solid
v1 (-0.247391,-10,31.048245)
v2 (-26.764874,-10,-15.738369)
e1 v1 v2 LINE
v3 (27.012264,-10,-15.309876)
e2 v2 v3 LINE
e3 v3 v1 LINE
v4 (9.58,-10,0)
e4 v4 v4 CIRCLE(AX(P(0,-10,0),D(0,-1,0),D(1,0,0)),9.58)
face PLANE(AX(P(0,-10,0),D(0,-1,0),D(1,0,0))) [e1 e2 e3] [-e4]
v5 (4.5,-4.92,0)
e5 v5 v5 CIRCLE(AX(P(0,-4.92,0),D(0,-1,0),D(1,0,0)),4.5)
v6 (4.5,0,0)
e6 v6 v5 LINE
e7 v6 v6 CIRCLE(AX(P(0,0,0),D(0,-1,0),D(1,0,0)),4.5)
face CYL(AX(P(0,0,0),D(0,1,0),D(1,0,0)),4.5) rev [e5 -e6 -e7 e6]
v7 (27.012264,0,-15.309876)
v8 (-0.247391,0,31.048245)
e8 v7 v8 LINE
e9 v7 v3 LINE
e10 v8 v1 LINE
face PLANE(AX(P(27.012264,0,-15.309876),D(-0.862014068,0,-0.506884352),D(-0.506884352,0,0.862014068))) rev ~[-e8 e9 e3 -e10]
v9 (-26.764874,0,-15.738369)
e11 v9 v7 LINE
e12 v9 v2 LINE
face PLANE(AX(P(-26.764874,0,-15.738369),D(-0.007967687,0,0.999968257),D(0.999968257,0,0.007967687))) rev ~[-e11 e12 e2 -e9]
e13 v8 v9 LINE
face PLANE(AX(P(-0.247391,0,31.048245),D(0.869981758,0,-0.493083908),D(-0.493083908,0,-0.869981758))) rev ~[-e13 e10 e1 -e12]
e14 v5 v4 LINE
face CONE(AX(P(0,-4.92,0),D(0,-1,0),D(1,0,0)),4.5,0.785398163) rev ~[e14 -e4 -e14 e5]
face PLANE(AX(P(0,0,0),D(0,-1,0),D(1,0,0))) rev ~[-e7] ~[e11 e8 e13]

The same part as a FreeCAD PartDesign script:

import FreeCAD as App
import Part
import Sketcher

V = App.Vector


def edges_at(feature, points):
    """Names of the edges that pass closest to the given points."""
    edges = feature.Shape.Edges
    near = lambda p: min(range(len(edges)), key=lambda i: edges[i].distToShape(Part.Vertex(*p))[0])
    return sorted({f"Edge{near(p) + 1}" for p in points})

doc = App.newDocument("Part")
params = doc.addObject("Spreadsheet::Sheet", "Params")
for row, (alias, value) in enumerate([
    ("sketch1_diameter", "9 mm"),
    ("pad1_length", "10 mm"),
    ("chamfer_size", "5.08 mm"),
], start=1):
    params.set(f"A{row}", alias)
    params.set(f"B{row}", "=" + value)
    params.setAlias(f"B{row}", alias)

body = doc.addObject("PartDesign::Body", "Body")

# Sketch on XZ plane
sketch1 = doc.addObject("Sketcher::SketchObject", "Sketch")
body.addObject(sketch1)
sketch1.AttachmentSupport = (doc.XZ_Plane, [""])
sketch1.MapMode = "FlatFace"
sketch1.addGeometry(Part.LineSegment(V(-0.247391, 31.048245, 0), V(-26.764874, -15.738369, 0)), False)
sketch1.addGeometry(Part.LineSegment(V(-26.764874, -15.738369, 0), V(27.012264, -15.309876, 0)), False)
sketch1.addGeometry(Part.LineSegment(V(27.012264, -15.309876, 0), V(-0.247391, 31.048245, 0)), False)
sketch1.addGeometry(Part.Circle(V(0, 0, 0), V(0, 0, 1), 4.5), False)
sketch1.addConstraint(Sketcher.Constraint("Coincident", 0, 2, 1, 1))
sketch1.addConstraint(Sketcher.Constraint("Coincident", 1, 2, 2, 1))
sketch1.addConstraint(Sketcher.Constraint("Coincident", 2, 2, 0, 1))
sketch1.addConstraint(Sketcher.Constraint("Coincident", 3, 3, -1, 1))
sketch1.addConstraint(Sketcher.Constraint("Equal", 0, 1))
sketch1.addConstraint(Sketcher.Constraint("Equal", 1, 2))
sketch1.addConstraint(Sketcher.Constraint("Diameter", 3, 9.0))
sketch1.addConstraint(Sketcher.Constraint("DistanceY", 0, 2, -1, 1, 15.738369))
sketch1.addConstraint(Sketcher.Constraint("DistanceX", 2, 2, -1, 1, 0.247391))
sketch1.addConstraint(Sketcher.Constraint("DistanceY", 1, 2, 2, 2, 46.358121))
sketch1.addConstraint(Sketcher.Constraint("Distance", 0, 53.778845))
sketch1.setExpression("Constraints[6]", "Params.sketch1_diameter")
pad1 = doc.addObject("PartDesign::Pad", "Pad")
body.addObject(pad1)
pad1.Profile = sketch1
pad1.setExpression("Length", "Params.pad1_length")
doc.recompute()

chamfer = doc.addObject("PartDesign::Chamfer", "Chamfer")
body.addObject(chamfer)
chamfer.Base = (pad1, edges_at(pad1, [(-4.5, -10, 0)]))
chamfer.setExpression("Size", "Params.chamfer_size")

doc.recompute()
